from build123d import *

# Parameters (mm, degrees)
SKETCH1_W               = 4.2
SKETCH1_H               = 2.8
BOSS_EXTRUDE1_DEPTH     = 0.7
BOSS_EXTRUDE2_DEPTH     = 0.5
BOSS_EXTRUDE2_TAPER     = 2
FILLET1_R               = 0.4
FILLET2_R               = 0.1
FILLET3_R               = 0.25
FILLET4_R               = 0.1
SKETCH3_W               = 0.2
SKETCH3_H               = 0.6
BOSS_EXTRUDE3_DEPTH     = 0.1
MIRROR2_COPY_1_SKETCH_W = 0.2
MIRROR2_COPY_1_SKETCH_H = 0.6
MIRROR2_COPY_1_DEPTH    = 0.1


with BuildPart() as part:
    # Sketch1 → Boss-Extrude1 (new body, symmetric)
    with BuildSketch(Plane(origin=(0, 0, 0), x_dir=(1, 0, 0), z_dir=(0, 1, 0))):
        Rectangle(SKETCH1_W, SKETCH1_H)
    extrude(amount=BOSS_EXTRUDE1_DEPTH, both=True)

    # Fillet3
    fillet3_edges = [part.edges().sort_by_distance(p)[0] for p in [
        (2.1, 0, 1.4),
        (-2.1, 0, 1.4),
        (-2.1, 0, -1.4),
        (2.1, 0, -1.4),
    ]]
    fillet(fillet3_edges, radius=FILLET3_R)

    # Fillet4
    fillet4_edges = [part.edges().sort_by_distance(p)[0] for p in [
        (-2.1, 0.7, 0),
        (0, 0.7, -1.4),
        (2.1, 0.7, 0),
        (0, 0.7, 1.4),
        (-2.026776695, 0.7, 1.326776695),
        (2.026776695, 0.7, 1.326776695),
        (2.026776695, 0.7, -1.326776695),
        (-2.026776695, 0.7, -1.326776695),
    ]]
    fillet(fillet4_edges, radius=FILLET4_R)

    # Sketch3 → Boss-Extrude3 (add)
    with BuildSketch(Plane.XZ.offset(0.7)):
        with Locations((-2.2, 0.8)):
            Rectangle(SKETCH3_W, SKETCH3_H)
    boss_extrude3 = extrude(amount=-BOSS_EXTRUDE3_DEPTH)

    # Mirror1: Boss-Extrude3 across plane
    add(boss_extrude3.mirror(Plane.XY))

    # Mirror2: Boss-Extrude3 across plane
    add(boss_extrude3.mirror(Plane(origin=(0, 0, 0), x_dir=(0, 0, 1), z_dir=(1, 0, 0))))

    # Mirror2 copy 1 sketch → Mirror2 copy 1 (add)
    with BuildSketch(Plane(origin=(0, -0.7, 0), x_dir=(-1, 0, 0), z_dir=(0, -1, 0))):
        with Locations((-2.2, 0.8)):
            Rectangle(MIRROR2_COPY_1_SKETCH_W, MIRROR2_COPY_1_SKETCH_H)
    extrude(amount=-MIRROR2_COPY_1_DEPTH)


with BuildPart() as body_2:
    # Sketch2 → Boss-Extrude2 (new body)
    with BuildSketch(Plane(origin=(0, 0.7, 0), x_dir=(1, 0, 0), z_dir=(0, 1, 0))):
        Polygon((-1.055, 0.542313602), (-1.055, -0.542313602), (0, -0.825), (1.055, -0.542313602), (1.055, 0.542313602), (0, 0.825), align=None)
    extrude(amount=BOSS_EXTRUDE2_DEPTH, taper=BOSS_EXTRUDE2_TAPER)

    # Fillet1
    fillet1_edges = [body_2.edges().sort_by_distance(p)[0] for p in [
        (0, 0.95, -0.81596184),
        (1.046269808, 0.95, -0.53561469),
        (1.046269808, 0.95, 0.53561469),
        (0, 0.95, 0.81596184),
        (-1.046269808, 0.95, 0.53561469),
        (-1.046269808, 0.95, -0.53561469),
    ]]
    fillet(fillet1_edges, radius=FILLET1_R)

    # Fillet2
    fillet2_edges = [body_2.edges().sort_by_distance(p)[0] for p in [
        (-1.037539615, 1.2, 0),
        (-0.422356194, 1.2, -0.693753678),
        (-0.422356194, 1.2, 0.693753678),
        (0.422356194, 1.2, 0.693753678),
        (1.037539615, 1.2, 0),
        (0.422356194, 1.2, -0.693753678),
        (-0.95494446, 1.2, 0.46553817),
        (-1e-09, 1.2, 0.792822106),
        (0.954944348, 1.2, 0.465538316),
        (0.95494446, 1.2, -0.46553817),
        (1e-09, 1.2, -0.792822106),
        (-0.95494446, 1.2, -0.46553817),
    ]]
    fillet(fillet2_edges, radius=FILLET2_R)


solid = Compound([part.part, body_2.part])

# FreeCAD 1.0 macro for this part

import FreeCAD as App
import Part
import Sketcher
Q = App.Units.Quantity


def edges_at(feature, points):
    """Names of the edges that pass closest to the given points."""
    edges = feature.Shape.Edges
    near = lambda p: min(range(len(edges)), key=lambda i: edges[i].distToShape(Part.Vertex(*p))[0])
    return sorted({f"Edge{near(p) + 1}" for p in points})


def add_polygon(sketch, points):
    """Adds a closed chain of lines whose ends are joined by coincident constraints."""
    first, n = sketch.GeometryCount, len(points)
    for a, b in zip(points, points[1:] + points[:1]):
        sketch.addGeometry(Part.LineSegment(App.Vector(*a, 0), App.Vector(*b, 0)), False)
    for i in range(n):
        sketch.addConstraint(Sketcher.Constraint("Coincident", first + i, 2, first + (i + 1) % n, 1))

doc = App.newDocument("Part")
body = doc.addObject("PartDesign::Body", "Body")

# Sketch on XZ plane
sketch1 = doc.addObject("Sketcher::SketchObject", "Sketch")
body.addObject(sketch1)
sketch1.AttachmentSupport = (doc.XZ_Plane, [""])
sketch1.MapMode = "FlatFace"
add_polygon(sketch1, [(-2.1, -1.4), (-2.1, 1.4), (2.1, 1.4), (2.1, -1.4)])  # lines 0-3
sketch1.addConstraint([
    Sketcher.Constraint("Vertical", 0),
    Sketcher.Constraint("Horizontal", 1),
    Sketcher.Constraint("Vertical", 2),
    Sketcher.Constraint("Horizontal", 3),
    Sketcher.Constraint("Symmetric", 0, 2, 2, 2, -1, 1),
    Sketcher.Constraint("DistanceX", 1, 1, 1, 2, Q("4.2 mm")),
    Sketcher.Constraint("DistanceY", 0, 1, 0, 2, Q("2.8 mm")),
])
pad1 = doc.addObject("PartDesign::Pad", "Pad")
body.addObject(pad1)
pad1.Profile = sketch1
pad1.Length = 1.4
pad1.Midplane = True
doc.recompute()

fillet = doc.addObject("PartDesign::Fillet", "Fillet")
body.addObject(fillet)
fillet.Base = (pad1, edges_at(pad1, [
    (2.1, 0, 1.4),
    (-2.1, 0, 1.4),
    (-2.1, 0, -1.4),
    (2.1, 0, -1.4),
]))
fillet.Radius = 0.25
doc.recompute()

fillet2 = doc.addObject("PartDesign::Fillet", "Fillet001")
body.addObject(fillet2)
fillet2.Base = (fillet, edges_at(fillet, [
    (-2.1, 0.7, 0),
    (0, 0.7, -1.4),
    (2.1, 0.7, 0),
    (0, 0.7, 1.4),
    (-2.027, 0.7, 1.327),
    (2.027, 0.7, 1.327),
    (2.027, 0.7, -1.327),
    (-2.027, 0.7, -1.327),
]))
fillet2.Radius = 0.1

# Sketch on XZ plane
sketch2 = doc.addObject("Sketcher::SketchObject", "Sketch001")
body.addObject(sketch2)
sketch2.AttachmentSupport = (doc.XZ_Plane, [""])
sketch2.MapMode = "FlatFace"
sketch2.AttachmentOffset = App.Placement(App.Vector(0, 0, 0.7), App.Rotation())
add_polygon(sketch2, [(-2.3, 1.1), (-2.3, 0.5), (-2.1, 0.5), (-2.1, 1.1)])  # lines 0-3
sketch2.addConstraint([
    Sketcher.Constraint("Vertical", 0),
    Sketcher.Constraint("Horizontal", 1),
    Sketcher.Constraint("Vertical", 2),
    Sketcher.Constraint("Horizontal", 3),
    Sketcher.Constraint("DistanceX", 1, 1, 1, 2, Q("0.2 mm")),
    Sketcher.Constraint("DistanceY", 0, 2, 0, 1, Q("0.6 mm")),
    Sketcher.Constraint("DistanceX", 0, 2, -1, 1, Q("2.3 mm")),
    Sketcher.Constraint("DistanceY", -1, 1, 0, 2, Q("0.5 mm")),
])
pad2 = doc.addObject("PartDesign::Pad", "Pad001")
body.addObject(pad2)
pad2.Profile = sketch2
pad2.Length = 0.1
pad2.Reversed = True
doc.recompute()

mirrored = doc.addObject("PartDesign::Mirrored", "Mirrored")
body.addObject(mirrored)
mirrored.Originals = [pad2]
mirrored.MirrorPlane = (doc.XY_Plane, [""])
body.Tip = mirrored
doc.recompute()

mirrored2 = doc.addObject("PartDesign::Mirrored", "Mirrored001")
body.addObject(mirrored2)
mirrored2.Originals = [pad2]
mirrored2.MirrorPlane = (doc.YZ_Plane, [""])
body.Tip = mirrored2

# Sketch on XZ plane
sketch3 = doc.addObject("Sketcher::SketchObject", "Sketch002")
body.addObject(sketch3)
sketch3.AttachmentSupport = (doc.XZ_Plane, [""])
sketch3.MapMode = "FlatFace"
sketch3.AttachmentOffset = App.Placement(App.Vector(0, 0, 0.7), App.Rotation())
add_polygon(sketch3, [(2.3, -1.1), (2.3, -0.5), (2.1, -0.5), (2.1, -1.1)])  # lines 0-3
sketch3.addConstraint([
    Sketcher.Constraint("Vertical", 0),
    Sketcher.Constraint("Horizontal", 1),
    Sketcher.Constraint("Vertical", 2),
    Sketcher.Constraint("Horizontal", 3),
    Sketcher.Constraint("DistanceX", 1, 2, 1, 1, Q("0.2 mm")),
    Sketcher.Constraint("DistanceY", 0, 1, 0, 2, Q("0.6 mm")),
    Sketcher.Constraint("DistanceX", -1, 1, 0, 2, Q("2.3 mm")),
    Sketcher.Constraint("DistanceY", 0, 2, -1, 1, Q("0.5 mm")),
])
pad3 = doc.addObject("PartDesign::Pad", "Pad002")
body.addObject(pad3)
pad3.Profile = sketch3
pad3.Length = 0.1
pad3.Reversed = True
body2 = doc.addObject("PartDesign::Body", "Body001")

# Sketch on XZ plane
sketch4 = doc.addObject("Sketcher::SketchObject", "Sketch003")
body2.addObject(sketch4)
sketch4.AttachmentSupport = (doc.getObject("XZ_Plane001"), [""])
sketch4.MapMode = "FlatFace"
sketch4.AttachmentOffset = App.Placement(App.Vector(0, 0, -0.7), App.Rotation())
add_polygon(sketch4, [(-1.1, -0.5), (-1.1, 0.5), (0, 0.8), (1.1, 0.5), (1.1, -0.5), (0, -0.8)])  # lines 0-5
sketch4.addConstraint([
    Sketcher.Constraint("Vertical", 0),
    Sketcher.Constraint("Vertical", 3),
    Sketcher.Constraint("Symmetric", 0, 2, 3, 2, -1, 1),
    Sketcher.Constraint("Symmetric", 1, 2, 4, 2, -1, 1),
    Sketcher.Constraint("PointOnObject", 1, 2, -2),
    Sketcher.Constraint("Parallel", 2, 5),
    Sketcher.Constraint("Horizontal", 0, 2, 2, 2),
    Sketcher.Constraint("Angle", 1, Q("15 deg")),
    Sketcher.Constraint("DistanceX", 0, 2, 2, 2, Q("2.11 mm")),
    Sketcher.Constraint("DistanceY", 4, 2, 1, 2, Q("1.65 mm")),
])
pad4 = doc.addObject("PartDesign::Pad", "Pad003")
body2.addObject(pad4)
pad4.Profile = sketch4
pad4.Length = 0.5
pad4.Reversed = True
pad4.TaperAngle = -2
doc.recompute()

fillet3 = doc.addObject("PartDesign::Fillet", "Fillet002")
body2.addObject(fillet3)
fillet3.Base = (pad4, edges_at(pad4, [
    (0, 0.95, -0.816),
    (1.046, 0.95, -0.536),
    (1.046, 0.95, 0.536),
    (0, 0.95, 0.816),
    (-1.046, 0.95, 0.536),
    (-1.046, 0.95, -0.536),
]))
fillet3.Radius = 0.4
doc.recompute()

fillet4 = doc.addObject("PartDesign::Fillet", "Fillet003")
body2.addObject(fillet4)
fillet4.Base = (fillet3, edges_at(fillet3, [
    (-1.038, 1.2, 0),
    (-0.422, 1.2, -0.694),
    (-0.422, 1.2, 0.694),
    (0.422, 1.2, 0.694),
    (1.038, 1.2, 0),
    (0.422, 1.2, -0.694),
    (-0.955, 1.2, 0.466),
    (0, 1.2, 0.793),
    (0.955, 1.2, 0.466),
    (0.955, 1.2, -0.466),
    (0, 1.2, -0.793),
    (-0.955, 1.2, -0.466),
]))
fillet4.Radius = 0.1

doc.recompute()
